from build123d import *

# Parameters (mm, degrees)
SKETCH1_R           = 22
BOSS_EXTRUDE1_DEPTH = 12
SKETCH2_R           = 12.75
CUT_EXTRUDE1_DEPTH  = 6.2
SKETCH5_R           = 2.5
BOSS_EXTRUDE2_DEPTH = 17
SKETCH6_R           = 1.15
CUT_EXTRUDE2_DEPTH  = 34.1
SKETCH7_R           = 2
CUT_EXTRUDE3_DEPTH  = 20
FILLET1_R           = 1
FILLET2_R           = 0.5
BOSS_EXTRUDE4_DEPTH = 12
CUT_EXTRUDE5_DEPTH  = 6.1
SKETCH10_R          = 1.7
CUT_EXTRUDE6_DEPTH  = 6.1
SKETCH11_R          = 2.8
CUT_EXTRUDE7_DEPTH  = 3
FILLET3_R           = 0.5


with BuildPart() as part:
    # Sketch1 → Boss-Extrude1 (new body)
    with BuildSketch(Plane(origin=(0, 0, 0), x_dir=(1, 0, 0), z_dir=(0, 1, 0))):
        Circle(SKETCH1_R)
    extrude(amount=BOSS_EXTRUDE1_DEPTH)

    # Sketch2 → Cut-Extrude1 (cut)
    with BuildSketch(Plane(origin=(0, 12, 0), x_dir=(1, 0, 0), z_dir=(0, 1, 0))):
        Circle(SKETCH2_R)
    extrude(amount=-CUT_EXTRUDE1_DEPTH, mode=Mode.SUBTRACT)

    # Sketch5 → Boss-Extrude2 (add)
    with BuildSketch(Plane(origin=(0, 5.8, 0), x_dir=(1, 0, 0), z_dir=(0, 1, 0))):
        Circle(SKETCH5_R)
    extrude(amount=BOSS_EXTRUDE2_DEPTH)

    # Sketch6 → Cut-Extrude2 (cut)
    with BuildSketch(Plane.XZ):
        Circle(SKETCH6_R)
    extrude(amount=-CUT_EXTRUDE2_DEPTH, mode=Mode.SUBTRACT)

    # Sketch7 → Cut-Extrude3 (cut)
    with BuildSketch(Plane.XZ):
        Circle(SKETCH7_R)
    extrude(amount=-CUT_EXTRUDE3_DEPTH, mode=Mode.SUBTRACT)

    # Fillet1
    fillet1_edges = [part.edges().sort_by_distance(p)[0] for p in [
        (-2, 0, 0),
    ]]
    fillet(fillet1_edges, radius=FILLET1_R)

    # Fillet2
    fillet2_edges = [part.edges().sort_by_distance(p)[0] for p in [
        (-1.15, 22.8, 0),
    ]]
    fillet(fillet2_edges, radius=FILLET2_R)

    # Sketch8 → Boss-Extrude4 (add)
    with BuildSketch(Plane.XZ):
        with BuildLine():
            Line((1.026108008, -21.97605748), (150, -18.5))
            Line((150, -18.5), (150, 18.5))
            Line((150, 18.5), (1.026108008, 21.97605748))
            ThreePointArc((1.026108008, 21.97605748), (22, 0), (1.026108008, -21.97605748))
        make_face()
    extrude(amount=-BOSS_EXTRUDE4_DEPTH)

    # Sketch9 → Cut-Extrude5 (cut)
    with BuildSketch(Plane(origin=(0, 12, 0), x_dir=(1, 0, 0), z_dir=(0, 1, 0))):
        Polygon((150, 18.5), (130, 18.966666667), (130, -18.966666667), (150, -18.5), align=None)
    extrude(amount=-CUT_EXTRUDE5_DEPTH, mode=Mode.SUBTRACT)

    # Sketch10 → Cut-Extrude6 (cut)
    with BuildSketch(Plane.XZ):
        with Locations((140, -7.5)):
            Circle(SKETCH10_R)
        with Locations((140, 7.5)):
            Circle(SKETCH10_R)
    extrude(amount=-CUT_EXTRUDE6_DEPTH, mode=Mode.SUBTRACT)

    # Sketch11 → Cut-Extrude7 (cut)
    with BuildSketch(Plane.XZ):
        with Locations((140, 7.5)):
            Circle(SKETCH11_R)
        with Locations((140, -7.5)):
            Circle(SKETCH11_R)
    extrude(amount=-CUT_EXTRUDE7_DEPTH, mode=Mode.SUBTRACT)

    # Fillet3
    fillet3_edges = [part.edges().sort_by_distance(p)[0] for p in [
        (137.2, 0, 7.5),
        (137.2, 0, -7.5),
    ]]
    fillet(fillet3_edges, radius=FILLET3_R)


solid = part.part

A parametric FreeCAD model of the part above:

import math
import FreeCAD as App
import Part
import Sketcher

V = App.Vector


def edges_at(feature, points):
    """Names of the edges that pass closest to the given points."""
    edges = feature.Shape.Edges
    near = lambda p: min(range(len(edges)), key=lambda i: edges[i].distToShape(Part.Vertex(*p))[0])
    return sorted({f"Edge{near(p) + 1}" for p in points})

doc = App.newDocument("Part")
body = doc.addObject("PartDesign::Body", "Body")

# Sketch on XZ plane
sketch1 = doc.addObject("Sketcher::SketchObject", "Sketch")
body.addObject(sketch1)
sketch1.AttachmentSupport = (doc.XZ_Plane, [""])
sketch1.MapMode = "FlatFace"
sketch1.addGeometry(Part.Circle(V(0, 0, 0), V(0, 0, 1), 22), False)
sketch1.addConstraint(Sketcher.Constraint("Coincident", 0, 3, -1, 1))
sketch1.addConstraint(Sketcher.Constraint("Diameter", 0, 44.0))
pad1 = doc.addObject("PartDesign::Pad", "Pad")
body.addObject(pad1)
pad1.Profile = sketch1
pad1.Length = 12
pad1.Reversed = True

# Sketch on XZ plane
sketch2 = doc.addObject("Sketcher::SketchObject", "Sketch001")
body.addObject(sketch2)
sketch2.AttachmentSupport = (doc.XZ_Plane, [""])
sketch2.MapMode = "FlatFace"
sketch2.AttachmentOffset = App.Placement(V(0, 0, -12), App.Rotation())
sketch2.addGeometry(Part.Circle(V(0, 0, 0), V(0, 0, 1), 12.75), False)
sketch2.addConstraint(Sketcher.Constraint("Coincident", 0, 3, -1, 1))
sketch2.addConstraint(Sketcher.Constraint("Diameter", 0, 25.5))
pocket1 = doc.addObject("PartDesign::Pocket", "Pocket")
body.addObject(pocket1)
pocket1.Profile = sketch2
pocket1.Length = 6.2
pocket1.Reversed = True

# Sketch on XZ plane
sketch3 = doc.addObject("Sketcher::SketchObject", "Sketch002")
body.addObject(sketch3)
sketch3.AttachmentSupport = (doc.XZ_Plane, [""])
sketch3.MapMode = "FlatFace"
sketch3.AttachmentOffset = App.Placement(V(0, 0, -5.8), App.Rotation())
sketch3.addGeometry(Part.Circle(V(0, 0, 0), V(0, 0, 1), 2.5), False)
sketch3.addConstraint(Sketcher.Constraint("Coincident", 0, 3, -1, 1))
sketch3.addConstraint(Sketcher.Constraint("Diameter", 0, 5.0))
pad2 = doc.addObject("PartDesign::Pad", "Pad001")
body.addObject(pad2)
pad2.Profile = sketch3
pad2.Length = 17
pad2.Reversed = True

# Sketch on XZ plane
sketch4 = doc.addObject("Sketcher::SketchObject", "Sketch003")
body.addObject(sketch4)
sketch4.AttachmentSupport = (doc.XZ_Plane, [""])
sketch4.MapMode = "FlatFace"
sketch4.addGeometry(Part.Circle(V(0, 0, 0), V(0, 0, 1), 1.15), False)
sketch4.addConstraint(Sketcher.Constraint("Coincident", 0, 3, -1, 1))
sketch4.addConstraint(Sketcher.Constraint("Diameter", 0, 2.3))
pocket2 = doc.addObject("PartDesign::Pocket", "Pocket001")
body.addObject(pocket2)
pocket2.Profile = sketch4
pocket2.Length = 34.1

# Sketch on XZ plane
sketch5 = doc.addObject("Sketcher::SketchObject", "Sketch004")
body.addObject(sketch5)
sketch5.AttachmentSupport = (doc.XZ_Plane, [""])
sketch5.MapMode = "FlatFace"
sketch5.addGeometry(Part.Circle(V(0, 0, 0), V(0, 0, 1), 2), False)
sketch5.addConstraint(Sketcher.Constraint("Coincident", 0, 3, -1, 1))
sketch5.addConstraint(Sketcher.Constraint("Diameter", 0, 4.0))
pocket3 = doc.addObject("PartDesign::Pocket", "Pocket002")
body.addObject(pocket3)
pocket3.Profile = sketch5
pocket3.Length = 20
doc.recompute()

fillet = doc.addObject("PartDesign::Fillet", "Fillet")
body.addObject(fillet)
fillet.Base = (pocket3, edges_at(pocket3, [(-2, 0, 0)]))
fillet.Radius = 1
doc.recompute()

fillet2 = doc.addObject("PartDesign::Fillet", "Fillet001")
body.addObject(fillet2)
fillet2.Base = (fillet, edges_at(fillet, [(-1.15, 22.8, 0)]))
fillet2.Radius = 0.5

# Sketch on XZ plane
sketch6 = doc.addObject("Sketcher::SketchObject", "Sketch005")
body.addObject(sketch6)
sketch6.AttachmentSupport = (doc.XZ_Plane, [""])
sketch6.MapMode = "FlatFace"
sketch6.addGeometry(Part.LineSegment(V(1.026108, -21.976057, 0), V(150, -18.5, 0)), False)
sketch6.addGeometry(Part.LineSegment(V(150, -18.5, 0), V(150, 18.5, 0)), False)
sketch6.addGeometry(Part.LineSegment(V(150, 18.5, 0), V(1.026108, 21.976057, 0)), False)
sketch6.addGeometry(Part.ArcOfCircle(Part.Circle(V(0, 0, 0), V(0, 0, 1), 22), math.radians(-87.326682), math.radians(87.326682)), False)
sketch6.addConstraint(Sketcher.Constraint("Coincident", 0, 2, 1, 1))
sketch6.addConstraint(Sketcher.Constraint("Coincident", 1, 2, 2, 1))
sketch6.addConstraint(Sketcher.Constraint("Coincident", 2, 2, 3, 2))
sketch6.addConstraint(Sketcher.Constraint("Coincident", 3, 1, 0, 1))
sketch6.addConstraint(Sketcher.Constraint("Vertical", 1))
sketch6.addConstraint(Sketcher.Constraint("Coincident", 3, 3, -1, 1))
sketch6.addConstraint(Sketcher.Constraint("Vertical", 2, 2, 3, 1))
sketch6.addConstraint(Sketcher.Constraint("Equal", 0, 2))
sketch6.addConstraint(Sketcher.Constraint("Radius", 3, 22.0))
sketch6.addConstraint(Sketcher.Constraint("DistanceY", 1, 1, 1, 2, 37.0))
sketch6.addConstraint(Sketcher.Constraint("DistanceX", -1, 1, 0, 2, 150.0))
sketch6.addConstraint(Sketcher.Constraint("Distance", 0, 149.01444))
pad3 = doc.addObject("PartDesign::Pad", "Pad002")
body.addObject(pad3)
pad3.Profile = sketch6
pad3.Length = 12
pad3.Reversed = True

# Sketch on XZ plane
sketch7 = doc.addObject("Sketcher::SketchObject", "Sketch006")
body.addObject(sketch7)
sketch7.AttachmentSupport = (doc.XZ_Plane, [""])
sketch7.MapMode = "FlatFace"
sketch7.AttachmentOffset = App.Placement(V(0, 0, -12), App.Rotation())
sketch7.addGeometry(Part.LineSegment(V(150, -18.5, 0), V(130, -18.966667, 0)), False)
sketch7.addGeometry(Part.LineSegment(V(130, -18.966667, 0), V(130, 18.966667, 0)), False)
sketch7.addGeometry(Part.LineSegment(V(130, 18.966667, 0), V(150, 18.5, 0)), False)
sketch7.addGeometry(Part.LineSegment(V(150, 18.5, 0), V(150, -18.5, 0)), False)
sketch7.addConstraint(Sketcher.Constraint("Coincident", 0, 2, 1, 1))
sketch7.addConstraint(Sketcher.Constraint("Coincident", 1, 2, 2, 1))
sketch7.addConstraint(Sketcher.Constraint("Coincident", 2, 2, 3, 1))
sketch7.addConstraint(Sketcher.Constraint("Coincident", 3, 2, 0, 1))
sketch7.addConstraint(Sketcher.Constraint("Vertical", 1))
sketch7.addConstraint(Sketcher.Constraint("Vertical", 3))
sketch7.addConstraint(Sketcher.Constraint("Equal", 0, 2))
sketch7.addConstraint(Sketcher.Constraint("DistanceY", 3, 2, 3, 1, 37.0))
sketch7.addConstraint(Sketcher.Constraint("DistanceX", -1, 1, 0, 2, 130.0))
sketch7.addConstraint(Sketcher.Constraint("DistanceX", -1, 1, 2, 2, 150.0))
sketch7.addConstraint(Sketcher.Constraint("DistanceY", -1, 1, 2, 2, 18.5))
sketch7.addConstraint(Sketcher.Constraint("DistanceY", 1, 1, 1, 2, 37.933333))
pocket4 = doc.addObject("PartDesign::Pocket", "Pocket003")
body.addObject(pocket4)
pocket4.Profile = sketch7
pocket4.Length = 6.1
pocket4.Reversed = True

# Sketch on XZ plane
sketch8 = doc.addObject("Sketcher::SketchObject", "Sketch007")
body.addObject(sketch8)
sketch8.AttachmentSupport = (doc.XZ_Plane, [""])
sketch8.MapMode = "FlatFace"
sketch8.addGeometry(Part.Circle(V(140, -7.5, 0), V(0, 0, 1), 1.7), False)
sketch8.addGeometry(Part.Circle(V(140, 7.5, 0), V(0, 0, 1), 1.7), False)
sketch8.addConstraint(Sketcher.Constraint("Equal", 0, 1))
sketch8.addConstraint(Sketcher.Constraint("Symmetric", 0, 3, 1, 3, -1))
sketch8.addConstraint(Sketcher.Constraint("Diameter", 0, 3.4))
sketch8.addConstraint(Sketcher.Constraint("DistanceX", -1, 1, 0, 3, 140.0))
sketch8.addConstraint(Sketcher.Constraint("DistanceY", 0, 3, 1, 3, 15.0))
pocket5 = doc.addObject("PartDesign::Pocket", "Pocket004")
body.addObject(pocket5)
pocket5.Profile = sketch8
pocket5.Length = 6.1

# Sketch on XZ plane
sketch9 = doc.addObject("Sketcher::SketchObject", "Sketch008")
body.addObject(sketch9)
sketch9.AttachmentSupport = (doc.XZ_Plane, [""])
sketch9.MapMode = "FlatFace"
sketch9.addGeometry(Part.Circle(V(140, 7.5, 0), V(0, 0, 1), 2.8), False)
sketch9.addGeometry(Part.Circle(V(140, -7.5, 0), V(0, 0, 1), 2.8), False)
sketch9.addConstraint(Sketcher.Constraint("Equal", 0, 1))
sketch9.addConstraint(Sketcher.Constraint("Symmetric", 0, 3, 1, 3, -1))
sketch9.addConstraint(Sketcher.Constraint("Diameter", 0, 5.6))
sketch9.addConstraint(Sketcher.Constraint("DistanceX", -1, 1, 0, 3, 140.0))
sketch9.addConstraint(Sketcher.Constraint("DistanceY", 1, 3, 0, 3, 15.0))
pocket6 = doc.addObject("PartDesign::Pocket", "Pocket005")
body.addObject(pocket6)
pocket6.Profile = sketch9
pocket6.Length = 3
doc.recompute()

fillet3 = doc.addObject("PartDesign::Fillet", "Fillet002")
body.addObject(fillet3)
fillet3.Base = (pocket6, edges_at(pocket6, [(137.2, 0, 7.5), (137.2, 0, -7.5)]))
fillet3.Radius = 0.5

doc.recompute()
